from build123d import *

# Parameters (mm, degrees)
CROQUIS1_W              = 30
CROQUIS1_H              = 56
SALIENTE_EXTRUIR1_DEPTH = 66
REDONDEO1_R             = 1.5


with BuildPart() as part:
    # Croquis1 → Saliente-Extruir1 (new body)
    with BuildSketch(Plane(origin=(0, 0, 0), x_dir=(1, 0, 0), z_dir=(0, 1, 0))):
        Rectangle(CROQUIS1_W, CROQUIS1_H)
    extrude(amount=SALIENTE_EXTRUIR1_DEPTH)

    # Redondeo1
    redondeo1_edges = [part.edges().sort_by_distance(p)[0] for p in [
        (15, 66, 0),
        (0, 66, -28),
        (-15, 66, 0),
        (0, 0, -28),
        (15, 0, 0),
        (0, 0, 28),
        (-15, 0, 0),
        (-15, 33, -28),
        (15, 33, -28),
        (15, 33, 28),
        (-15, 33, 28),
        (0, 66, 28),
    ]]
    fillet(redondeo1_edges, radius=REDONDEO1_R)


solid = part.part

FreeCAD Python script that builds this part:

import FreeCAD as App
import Part
import Sketcher

V = App.Vector
Q = App.Units.Quantity


def add_polygon(sketch, points):
    """Adds a closed chain of lines whose ends are joined by coincident constraints."""
    first, n = sketch.GeometryCount, len(points)
    for a, b in zip(points, points[1:] + points[:1]):
        sketch.addGeometry(Part.LineSegment(App.Vector(*a, 0), App.Vector(*b, 0)), False)
    for i in range(n):
        sketch.addConstraint(Sketcher.Constraint("Coincident", first + i, 2, first + (i + 1) % n, 1))

doc = App.newDocument("Part")
body = doc.addObject("PartDesign::Body", "Body")

sketch1 = doc.addObject("Sketcher::SketchObject", "Sketch")
body.addObject(sketch1)
sketch1.AttachmentSupport = (doc.XZ_Plane, [""])
sketch1.MapMode = "FlatFace"
add_polygon(sketch1, [(-15, -28), (-15, 28), (15, 28), (15, -28)])
sketch1.addConstraint([
    Sketcher.Constraint("Vertical", 0),
    Sketcher.Constraint("Horizontal", 1),
    Sketcher.Constraint("Vertical", 2),
    Sketcher.Constraint("Horizontal", 3),
    Sketcher.Constraint("Symmetric", 0, 2, 2, 2, -1, 1),
    Sketcher.Constraint("DistanceX", 1, 1, 1, 2, Q("30 mm")),
    Sketcher.Constraint("DistanceY", 0, 1, 0, 2, Q("56 mm")),
])
pad1 = doc.addObject("PartDesign::Pad", "Pad")
body.addObject(pad1)
pad1.Profile = sketch1
pad1.Length = 66
pad1.Reversed = True
doc.recompute()

fillet = doc.addObject("PartDesign::Fillet", "Fillet")
body.addObject(fillet)
fillet.Base = (pad1, ["Edge1"])
fillet.UseAllEdges = True
fillet.Radius = 1.5

doc.recompute()
